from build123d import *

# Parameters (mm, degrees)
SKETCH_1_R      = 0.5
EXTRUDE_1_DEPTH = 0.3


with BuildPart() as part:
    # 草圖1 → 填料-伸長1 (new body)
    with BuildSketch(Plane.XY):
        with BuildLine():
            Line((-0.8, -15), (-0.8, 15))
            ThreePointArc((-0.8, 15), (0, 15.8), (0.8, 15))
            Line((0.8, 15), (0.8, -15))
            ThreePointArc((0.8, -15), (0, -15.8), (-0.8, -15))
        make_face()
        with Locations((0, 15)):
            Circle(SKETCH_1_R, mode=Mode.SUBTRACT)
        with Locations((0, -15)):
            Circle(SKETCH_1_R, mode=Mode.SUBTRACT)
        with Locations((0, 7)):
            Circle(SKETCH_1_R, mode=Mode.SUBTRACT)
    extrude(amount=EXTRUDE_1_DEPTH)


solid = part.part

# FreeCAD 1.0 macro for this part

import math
import FreeCAD as App
import Part
import Sketcher
Q = App.Units.Quantity

doc = App.newDocument("Part")
params = doc.addObject("Spreadsheet::Sheet", "Params")
for row, (alias, value) in enumerate([
    ("sketch1_diameter", "1 mm"),
    ("sketch1_radius", "0.8 mm"),
    ("sketch1_height", "30 mm"),
    ("pad1_length", "0.3 mm"),
], start=1):
    params.set(f"A{row}", alias)
    params.set(f"B{row}", "=" + value)
    params.setAlias(f"B{row}", alias)

body = doc.addObject("PartDesign::Body", "Body")

# Sketch on XY plane
sketch1 = body.newObject("Sketcher::SketchObject", "Sketch")
sketch1.AttachmentSupport = (doc.getObject("XY_Plane"), [""])
sketch1.MapMode = "FlatFace"
sketch1.addGeometry([
    Part.LineSegment(App.Vector(-0.8, 15, 0), App.Vector(-0.8, -15, 0)),  # 0
    Part.ArcOfCircle(Part.Circle(App.Vector(0, -15, 0), App.Vector(0, 0, 1), 0.8), math.radians(180), math.radians(360)),  # 1
    Part.LineSegment(App.Vector(0.8, -15, 0), App.Vector(0.8, 15, 0)),  # 2
    Part.ArcOfCircle(Part.Circle(App.Vector(0, 15, 0), App.Vector(0, 0, 1), 0.8), math.radians(0), math.radians(180)),  # 3
    Part.Circle(App.Vector(0, -15, 0), App.Vector(0, 0, 1), 0.5),  # 4
    Part.Circle(App.Vector(0, 7, 0), App.Vector(0, 0, 1), 0.5),  # 5
    Part.Circle(App.Vector(0, 15, 0), App.Vector(0, 0, 1), 0.5),  # 6
], False)
sketch1.addConstraint([
    Sketcher.Constraint("Tangent", 0, 2, 1, 1),
    Sketcher.Constraint("Tangent", 1, 2, 2, 1),
    Sketcher.Constraint("Tangent", 2, 2, 3, 1),
    Sketcher.Constraint("Tangent", 3, 2, 0, 1),
    Sketcher.Constraint("Vertical", 0),
    Sketcher.Constraint("Vertical", 2),
    Sketcher.Constraint("Coincident", 4, 3, 1, 3),
    Sketcher.Constraint("Coincident", 6, 3, 3, 3),
    Sketcher.Constraint("Equal", 4, 5),
    Sketcher.Constraint("Equal", 5, 6),
    Sketcher.Constraint("Symmetric", 1, 3, 3, 3, -1, 1),
    Sketcher.Constraint("PointOnObject", 5, 3, -2),
    Sketcher.Constraint("Diameter", 4, Q("1 mm")),
    Sketcher.Constraint("Radius", 1, Q("0.8 mm")),
    Sketcher.Constraint("DistanceY", 0, 2, 0, 1, Q("30 mm")),
    Sketcher.Constraint("DistanceY", -1, 1, 5, 3, Q("7 mm")),
])
sketch1.setExpression("Constraints[12]", "Params.sketch1_diameter")
sketch1.setExpression("Constraints[13]", "Params.sketch1_radius")
sketch1.setExpression("Constraints[14]", "Params.sketch1_height")
pad1 = body.newObject("PartDesign::Pad", "Pad")
pad1.Profile = sketch1
pad1.setExpression("Length", "Params.pad1_length")

doc.recompute()
